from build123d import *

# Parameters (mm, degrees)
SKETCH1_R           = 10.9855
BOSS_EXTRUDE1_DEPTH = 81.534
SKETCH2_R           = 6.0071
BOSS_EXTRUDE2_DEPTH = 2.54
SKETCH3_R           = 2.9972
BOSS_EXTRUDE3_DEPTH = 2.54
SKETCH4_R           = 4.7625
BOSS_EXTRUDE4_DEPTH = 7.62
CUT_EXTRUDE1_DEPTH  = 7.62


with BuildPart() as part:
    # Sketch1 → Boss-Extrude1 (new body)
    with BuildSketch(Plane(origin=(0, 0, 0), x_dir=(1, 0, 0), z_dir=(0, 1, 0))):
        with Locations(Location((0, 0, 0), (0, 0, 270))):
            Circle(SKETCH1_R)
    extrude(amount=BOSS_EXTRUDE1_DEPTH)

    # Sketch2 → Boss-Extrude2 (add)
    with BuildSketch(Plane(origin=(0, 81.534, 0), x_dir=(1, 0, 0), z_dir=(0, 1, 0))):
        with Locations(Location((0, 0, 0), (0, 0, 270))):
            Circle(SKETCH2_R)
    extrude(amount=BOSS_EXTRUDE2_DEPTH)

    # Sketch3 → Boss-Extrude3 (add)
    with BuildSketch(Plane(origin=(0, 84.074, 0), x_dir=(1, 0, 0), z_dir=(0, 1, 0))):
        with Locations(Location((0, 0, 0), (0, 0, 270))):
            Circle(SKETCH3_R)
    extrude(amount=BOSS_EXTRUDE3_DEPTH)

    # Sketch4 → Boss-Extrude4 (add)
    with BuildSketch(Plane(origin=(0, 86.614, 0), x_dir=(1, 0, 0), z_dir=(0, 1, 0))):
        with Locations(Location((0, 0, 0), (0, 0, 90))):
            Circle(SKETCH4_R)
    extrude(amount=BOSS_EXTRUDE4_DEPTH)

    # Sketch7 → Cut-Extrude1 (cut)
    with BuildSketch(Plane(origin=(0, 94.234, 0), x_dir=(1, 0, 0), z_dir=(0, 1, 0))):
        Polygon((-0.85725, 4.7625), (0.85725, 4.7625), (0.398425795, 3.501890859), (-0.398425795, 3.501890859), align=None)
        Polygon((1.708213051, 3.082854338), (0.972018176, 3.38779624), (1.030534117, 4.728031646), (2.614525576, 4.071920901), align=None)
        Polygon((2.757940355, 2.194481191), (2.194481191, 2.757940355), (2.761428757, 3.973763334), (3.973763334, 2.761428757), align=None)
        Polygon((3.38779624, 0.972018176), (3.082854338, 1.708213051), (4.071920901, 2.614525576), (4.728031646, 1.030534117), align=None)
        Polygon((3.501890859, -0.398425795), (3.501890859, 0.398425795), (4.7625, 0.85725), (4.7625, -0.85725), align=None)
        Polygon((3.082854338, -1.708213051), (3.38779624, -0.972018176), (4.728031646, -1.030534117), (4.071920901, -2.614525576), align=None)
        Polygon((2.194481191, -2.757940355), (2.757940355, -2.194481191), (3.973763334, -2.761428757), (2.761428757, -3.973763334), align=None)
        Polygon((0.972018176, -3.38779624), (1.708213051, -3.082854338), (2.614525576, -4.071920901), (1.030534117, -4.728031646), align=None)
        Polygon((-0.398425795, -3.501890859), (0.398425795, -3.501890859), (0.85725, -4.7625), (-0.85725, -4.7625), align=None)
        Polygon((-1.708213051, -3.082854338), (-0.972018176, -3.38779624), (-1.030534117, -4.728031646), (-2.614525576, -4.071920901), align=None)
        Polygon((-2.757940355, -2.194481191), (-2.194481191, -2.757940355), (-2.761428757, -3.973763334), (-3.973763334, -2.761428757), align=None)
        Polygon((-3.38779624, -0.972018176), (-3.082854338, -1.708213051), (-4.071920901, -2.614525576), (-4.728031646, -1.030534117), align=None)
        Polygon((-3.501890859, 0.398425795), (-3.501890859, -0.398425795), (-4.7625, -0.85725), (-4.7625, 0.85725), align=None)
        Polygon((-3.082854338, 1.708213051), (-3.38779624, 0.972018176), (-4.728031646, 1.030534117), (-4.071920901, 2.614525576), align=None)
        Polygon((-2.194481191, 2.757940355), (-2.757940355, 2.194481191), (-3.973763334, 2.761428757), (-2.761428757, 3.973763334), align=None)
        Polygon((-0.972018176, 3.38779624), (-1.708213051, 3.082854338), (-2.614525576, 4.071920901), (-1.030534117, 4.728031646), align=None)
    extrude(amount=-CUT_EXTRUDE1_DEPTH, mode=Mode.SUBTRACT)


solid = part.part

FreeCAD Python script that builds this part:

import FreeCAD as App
import Part
import Sketcher
from FreeCAD import Vector
Q = App.Units.Quantity


def add_polygon(sketch, points):
    """Adds a closed chain of lines whose ends are joined by coincident constraints."""
    first, n = sketch.GeometryCount, len(points)
    for a, b in zip(points, points[1:] + points[:1]):
        sketch.addGeometry(Part.LineSegment(App.Vector(*a, 0), App.Vector(*b, 0)), False)
    for i in range(n):
        sketch.addConstraint(Sketcher.Constraint("Coincident", first + i, 2, first + (i + 1) % n, 1))

doc = App.newDocument("Part")
body = doc.addObject("PartDesign::Body", "Body")

# Sketch on XZ plane
sketch1 = body.newObject("Sketcher::SketchObject", "Sketch")
sketch1.AttachmentSupport = (doc.getObject("XZ_Plane"), [""])
sketch1.MapMode = "FlatFace"
sketch1.addGeometry(Part.Circle(Vector(0, 0, 0), Vector(0, 0, 1), 11), False)
sketch1.addConstraint(Sketcher.Constraint("Coincident", 0, 3, -1, 1))
sketch1.addConstraint(Sketcher.Constraint("Diameter", 0, Q("0.865 in")))
pad1 = body.newObject("PartDesign::Pad", "Pad")
pad1.Profile = sketch1
pad1.Length = Q("3.21 in")
pad1.Reversed = True

# Sketch on XZ plane
sketch2 = body.newObject("Sketcher::SketchObject", "Sketch001")
sketch2.AttachmentSupport = (doc.getObject("XZ_Plane"), [""])
sketch2.MapMode = "FlatFace"
sketch2.AttachmentOffset = App.Placement(Vector(0, 0, -3.21 * 25.4), App.Rotation())
sketch2.addGeometry(Part.Circle(Vector(0, 0, 0), Vector(0, 0, 1), 6), False)
sketch2.addConstraint(Sketcher.Constraint("Coincident", 0, 3, -1, 1))
sketch2.addConstraint(Sketcher.Constraint("Diameter", 0, Q("0.473 in")))
pad2 = body.newObject("PartDesign::Pad", "Pad001")
pad2.Profile = sketch2
pad2.Length = Q("0.1 in")
pad2.Reversed = True

# Sketch on XZ plane
sketch3 = body.newObject("Sketcher::SketchObject", "Sketch002")
sketch3.AttachmentSupport = (doc.getObject("XZ_Plane"), [""])
sketch3.MapMode = "FlatFace"
sketch3.AttachmentOffset = App.Placement(Vector(0, 0, -3.31 * 25.4), App.Rotation())
sketch3.addGeometry(Part.Circle(Vector(0, 0, 0), Vector(0, 0, 1), 3), False)
sketch3.addConstraint(Sketcher.Constraint("Coincident", 0, 3, -1, 1))
sketch3.addConstraint(Sketcher.Constraint("Diameter", 0, Q("0.236 in")))
pad3 = body.newObject("PartDesign::Pad", "Pad002")
pad3.Profile = sketch3
pad3.Length = Q("0.1 in")
pad3.Reversed = True

# Sketch on XZ plane
sketch4 = body.newObject("Sketcher::SketchObject", "Sketch003")
sketch4.AttachmentSupport = (doc.getObject("XZ_Plane"), [""])
sketch4.MapMode = "FlatFace"
sketch4.AttachmentOffset = App.Placement(Vector(0, 0, -3.41 * 25.4), App.Rotation())
sketch4.addGeometry(Part.Circle(Vector(0, 0, 0), Vector(0, 0, 1), 4.8), False)
sketch4.addConstraint(Sketcher.Constraint("Coincident", 0, 3, -1, 1))
sketch4.addConstraint(Sketcher.Constraint("Diameter", 0, Q("0.375 in")))
pad4 = body.newObject("PartDesign::Pad", "Pad003")
pad4.Profile = sketch4
pad4.Length = Q("0.3 in")
pad4.Reversed = True

# Sketch on XZ plane
sketch5 = body.newObject("Sketcher::SketchObject", "Sketch004")
sketch5.AttachmentSupport = (doc.getObject("XZ_Plane"), [""])
sketch5.MapMode = "FlatFace"
sketch5.AttachmentOffset = App.Placement(Vector(0, 0, -3.71 * 25.4), App.Rotation())
add_polygon(sketch5, [(0.9, -4.8), (-0.9, -4.8), (-0.4, -3.5), (0.4, -3.5)])  # lines 0-3
add_polygon(sketch5, [(1, -3.4), (1.7, -3.1), (2.6, -4.1), (1, -4.7)])  # lines 4-7
add_polygon(sketch5, [(2.2, -2.8), (2.8, -2.2), (4, -2.8), (2.8, -4)])  # lines 8-11
add_polygon(sketch5, [(3.1, -1.7), (3.4, -1), (4.7, -1), (4.1, -2.6)])  # lines 12-15
add_polygon(sketch5, [(3.5, -0.4), (3.5, 0.4), (4.8, 0.9), (4.8, -0.9)])  # lines 16-19
add_polygon(sketch5, [(3.4, 1), (3.1, 1.7), (4.1, 2.6), (4.7, 1)])  # lines 20-23
add_polygon(sketch5, [(2.8, 2.2), (2.2, 2.8), (2.8, 4), (4, 2.8)])  # lines 24-27
add_polygon(sketch5, [(1.7, 3.1), (1, 3.4), (1, 4.7), (2.6, 4.1)])  # lines 28-31
add_polygon(sketch5, [(0.4, 3.5), (-0.4, 3.5), (-0.9, 4.8), (0.9, 4.8)])  # lines 32-35
add_polygon(sketch5, [(-1, 3.4), (-1.7, 3.1), (-2.6, 4.1), (-1, 4.7)])  # lines 36-39
add_polygon(sketch5, [(-2.2, 2.8), (-2.8, 2.2), (-4, 2.8), (-2.8, 4)])  # lines 40-43
add_polygon(sketch5, [(-3.1, 1.7), (-3.4, 1), (-4.7, 1), (-4.1, 2.6)])  # lines 44-47
add_polygon(sketch5, [(-3.5, 0.4), (-3.5, -0.4), (-4.8, -0.9), (-4.8, 0.9)])  # lines 48-51
add_polygon(sketch5, [(-3.4, -1), (-3.1, -1.7), (-4.1, -2.6), (-4.7, -1)])  # lines 52-55
add_polygon(sketch5, [(-2.8, -2.2), (-2.2, -2.8), (-2.8, -4), (-4, -2.8)])  # lines 56-59
add_polygon(sketch5, [(-1.7, -3.1), (-1, -3.4), (-1, -4.7), (-2.6, -4.1)])  # lines 60-63
sketch5.addConstraint(Sketcher.Constraint("Horizontal", 0))
sketch5.addConstraint(Sketcher.Constraint("Horizontal", 2))
sketch5.addConstraint(Sketcher.Constraint("Vertical", 16))
sketch5.addConstraint(Sketcher.Constraint("Vertical", 18))
sketch5.addConstraint(Sketcher.Constraint("Horizontal", 32))
sketch5.addConstraint(Sketcher.Constraint("Horizontal", 34))
sketch5.addConstraint(Sketcher.Constraint("Vertical", 48))
sketch5.addConstraint(Sketcher.Constraint("Vertical", 50))
sketch5.addConstraint(Sketcher.Constraint("Symmetric", 2, 2, 32, 2, -1, 1))
sketch5.addConstraint(Sketcher.Constraint("Symmetric", 3, 2, 33, 2, -1, 1))
sketch5.addConstraint(Sketcher.Constraint("Symmetric", 4, 2, 36, 2, -1, 1))
sketch5.addConstraint(Sketcher.Constraint("Symmetric", 5, 2, 37, 2, -1, 1))
sketch5.addConstraint(Sketcher.Constraint("Symmetric", 6, 2, 38, 2, -1, 1))
sketch5.addConstraint(Sketcher.Constraint("Symmetric", 7, 2, 39, 2, -1, 1))
sketch5.addConstraint(Sketcher.Constraint("Symmetric", 8, 2, 40, 2, -1, 1))
sketch5.addConstraint(Sketcher.Constraint("Symmetric", 9, 2, 41, 2, -1, 1))
sketch5.addConstraint(Sketcher.Constraint("Symmetric", 10, 2, 42, 2, -1, 1))
sketch5.addConstraint(Sketcher.Constraint("Symmetric", 11, 2, 43, 2, -1, 1))
sketch5.addConstraint(Sketcher.Constraint("Symmetric", 12, 2, 44, 2, -1, 1))
sketch5.addConstraint(Sketcher.Constraint("Symmetric", 13, 2, 45, 2, -1, 1))
sketch5.addConstraint(Sketcher.Constraint("Symmetric", 14, 2, 46, 2, -1, 1))
sketch5.addConstraint(Sketcher.Constraint("Symmetric", 15, 2, 47, 2, -1, 1))
sketch5.addConstraint(Sketcher.Constraint("Symmetric", 16, 2, 48, 2, -1, 1))
sketch5.addConstraint(Sketcher.Constraint("Symmetric", 17, 2, 49, 2, -1, 1))
sketch5.addConstraint(Sketcher.Constraint("Symmetric", 20, 2, 52, 2, -1, 1))
sketch5.addConstraint(Sketcher.Constraint("Symmetric", 21, 2, 53, 2, -1, 1))
sketch5.addConstraint(Sketcher.Constraint("Symmetric", 22, 2, 54, 2, -1, 1))
sketch5.addConstraint(Sketcher.Constraint("Symmetric", 23, 2, 55, 2, -1, 1))
sketch5.addConstraint(Sketcher.Constraint("Symmetric", 24, 2, 56, 2, -1, 1))
sketch5.addConstraint(Sketcher.Constraint("Symmetric", 25, 2, 57, 2, -1, 1))
sketch5.addConstraint(Sketcher.Constraint("Symmetric", 26, 2, 58, 2, -1, 1))
sketch5.addConstraint(Sketcher.Constraint("Symmetric", 27, 2, 59, 2, -1, 1))
sketch5.addConstraint(Sketcher.Constraint("Symmetric", 28, 2, 60, 2, -1, 1))
sketch5.addConstraint(Sketcher.Constraint("Symmetric", 29, 2, 61, 2, -1, 1))
sketch5.addConstraint(Sketcher.Constraint("Symmetric", 30, 2, 62, 2, -1, 1))
sketch5.addConstraint(Sketcher.Constraint("Symmetric", 31, 2, 63, 2, -1, 1))
sketch5.addConstraint(Sketcher.Constraint("Symmetric", 31, 2, 36, 2, -2))
sketch5.addConstraint(Sketcher.Constraint("Symmetric", 30, 2, 37, 2, -2))
sketch5.addConstraint(Sketcher.Constraint("Symmetric", 29, 2, 38, 2, -2))
sketch5.addConstraint(Sketcher.Constraint("Symmetric", 28, 2, 39, 2, -2))
sketch5.addConstraint(Sketcher.Constraint("Symmetric", 27, 2, 40, 2, -2))
sketch5.addConstraint(Sketcher.Constraint("Symmetric", 26, 2, 41, 2, -2))
sketch5.addConstraint(Sketcher.Constraint("Symmetric", 25, 2, 42, 2, -2))
sketch5.addConstraint(Sketcher.Constraint("Symmetric", 24, 2, 43, 2, -2))
sketch5.addConstraint(Sketcher.Constraint("Symmetric", 23, 2, 44, 2, -2))
sketch5.addConstraint(Sketcher.Constraint("Symmetric", 22, 2, 45, 2, -2))
sketch5.addConstraint(Sketcher.Constraint("Symmetric", 21, 2, 46, 2, -2))
sketch5.addConstraint(Sketcher.Constraint("Symmetric", 20, 2, 47, 2, -2))
sketch5.addConstraint(Sketcher.Constraint("Parallel", 4, 6))
sketch5.addConstraint(Sketcher.Constraint("Parallel", 8, 10))
sketch5.addConstraint(Sketcher.Constraint("Parallel", 12, 14))
sketch5.addConstraint(Sketcher.Constraint("Perpendicular", 3, 17))
sketch5.addConstraint(Sketcher.Constraint("Perpendicular", 1, 19))
sketch5.addConstraint(Sketcher.Constraint("Perpendicular", 6, 20))
sketch5.addConstraint(Sketcher.Constraint("Perpendicular", 5, 21))
sketch5.addConstraint(Sketcher.Constraint("Perpendicular", 7, 23))
sketch5.addConstraint(Sketcher.Constraint("Perpendicular", 10, 24))
sketch5.addConstraint(Sketcher.Constraint("Perpendicular", 9, 25))
sketch5.addConstraint(Sketcher.Constraint("Perpendicular", 19, 35))
sketch5.addConstraint(Sketcher.Constraint("Perpendicular", 35, 51))
sketch5.addConstraint(Sketcher.Constraint("Horizontal", 19, 2, 48, 2))
sketch5.addConstraint(Sketcher.Constraint("Horizontal", 18, 2, 49, 2))
sketch5.addConstraint(Sketcher.Constraint("Horizontal", 17, 2, 50, 2))
sketch5.addConstraint(Sketcher.Constraint("Vertical", 1, 2, 32, 2))
sketch5.addConstraint(Sketcher.Constraint("Vertical", 3, 2, 34, 2))
sketch5.addConstraint(Sketcher.Constraint("Equal", 32, 16))
sketch5.addConstraint(Sketcher.Constraint("Equal", 34, 18))
sketch5.addConstraint(Sketcher.Constraint("Equal", 3, 5))
sketch5.addConstraint(Sketcher.Constraint("Equal", 5, 7))
sketch5.addConstraint(Sketcher.Constraint("Equal", 4, 8))
sketch5.addConstraint(Sketcher.Constraint("Equal", 7, 9))
sketch5.addConstraint(Sketcher.Constraint("Equal", 6, 10))
sketch5.addConstraint(Sketcher.Constraint("Equal", 8, 12))
sketch5.addConstraint(Sketcher.Constraint("Equal", 11, 13))
sketch5.addConstraint(Sketcher.Constraint("Angle", 1, Q("70 deg")))
sketch5.addConstraint(Sketcher.Constraint("Angle", 9, Q("-25 deg")))
sketch5.addConstraint(Sketcher.Constraint("Angle", 4, Q("22.5 deg")))
sketch5.addConstraint(Sketcher.Constraint("DistanceX", 0, 2, 0, 1, Q("0.0675 in")))
sketch5.addConstraint(Sketcher.Constraint("DistanceY", 0, 2, -1, 1, Q("0.1875 in")))
sketch5.addConstraint(Sketcher.Constraint("DistanceX", -1, 1, 17, 2, Q("0.1875 in")))
sketch5.addConstraint(Sketcher.Constraint("Distance", 6, Q("0.0675 in")))
sketch5.addConstraint(Sketcher.Constraint("DistanceX", 2, 1, 2, 2, 0.796852))
sketch5.addConstraint(Sketcher.Constraint("DistanceY", 5, 2, -1, 1, 4.071921))
sketch5.addConstraint(Sketcher.Constraint("DistanceX", -1, 1, 7, 2, 0.972018))
sketch5.addConstraint(Sketcher.Constraint("DistanceX", -1, 1, 8, 2, 2.75794))
sketch5.addConstraint(Sketcher.Constraint("DistanceY", 8, 2, -1, 1, 2.194481))
sketch5.addConstraint(Sketcher.Constraint("DistanceY", 12, 2, -1, 1, 0.972018))
sketch5.addConstraint(Sketcher.Constraint("DistanceX", -1, 1, 13, 2, 4.728032))
pocket1 = body.newObject("PartDesign::Pocket", "Pocket")
pocket1.Profile = sketch5
pocket1.Length = Q("0.3 in")
pocket1.Reversed = True

doc.recompute()
